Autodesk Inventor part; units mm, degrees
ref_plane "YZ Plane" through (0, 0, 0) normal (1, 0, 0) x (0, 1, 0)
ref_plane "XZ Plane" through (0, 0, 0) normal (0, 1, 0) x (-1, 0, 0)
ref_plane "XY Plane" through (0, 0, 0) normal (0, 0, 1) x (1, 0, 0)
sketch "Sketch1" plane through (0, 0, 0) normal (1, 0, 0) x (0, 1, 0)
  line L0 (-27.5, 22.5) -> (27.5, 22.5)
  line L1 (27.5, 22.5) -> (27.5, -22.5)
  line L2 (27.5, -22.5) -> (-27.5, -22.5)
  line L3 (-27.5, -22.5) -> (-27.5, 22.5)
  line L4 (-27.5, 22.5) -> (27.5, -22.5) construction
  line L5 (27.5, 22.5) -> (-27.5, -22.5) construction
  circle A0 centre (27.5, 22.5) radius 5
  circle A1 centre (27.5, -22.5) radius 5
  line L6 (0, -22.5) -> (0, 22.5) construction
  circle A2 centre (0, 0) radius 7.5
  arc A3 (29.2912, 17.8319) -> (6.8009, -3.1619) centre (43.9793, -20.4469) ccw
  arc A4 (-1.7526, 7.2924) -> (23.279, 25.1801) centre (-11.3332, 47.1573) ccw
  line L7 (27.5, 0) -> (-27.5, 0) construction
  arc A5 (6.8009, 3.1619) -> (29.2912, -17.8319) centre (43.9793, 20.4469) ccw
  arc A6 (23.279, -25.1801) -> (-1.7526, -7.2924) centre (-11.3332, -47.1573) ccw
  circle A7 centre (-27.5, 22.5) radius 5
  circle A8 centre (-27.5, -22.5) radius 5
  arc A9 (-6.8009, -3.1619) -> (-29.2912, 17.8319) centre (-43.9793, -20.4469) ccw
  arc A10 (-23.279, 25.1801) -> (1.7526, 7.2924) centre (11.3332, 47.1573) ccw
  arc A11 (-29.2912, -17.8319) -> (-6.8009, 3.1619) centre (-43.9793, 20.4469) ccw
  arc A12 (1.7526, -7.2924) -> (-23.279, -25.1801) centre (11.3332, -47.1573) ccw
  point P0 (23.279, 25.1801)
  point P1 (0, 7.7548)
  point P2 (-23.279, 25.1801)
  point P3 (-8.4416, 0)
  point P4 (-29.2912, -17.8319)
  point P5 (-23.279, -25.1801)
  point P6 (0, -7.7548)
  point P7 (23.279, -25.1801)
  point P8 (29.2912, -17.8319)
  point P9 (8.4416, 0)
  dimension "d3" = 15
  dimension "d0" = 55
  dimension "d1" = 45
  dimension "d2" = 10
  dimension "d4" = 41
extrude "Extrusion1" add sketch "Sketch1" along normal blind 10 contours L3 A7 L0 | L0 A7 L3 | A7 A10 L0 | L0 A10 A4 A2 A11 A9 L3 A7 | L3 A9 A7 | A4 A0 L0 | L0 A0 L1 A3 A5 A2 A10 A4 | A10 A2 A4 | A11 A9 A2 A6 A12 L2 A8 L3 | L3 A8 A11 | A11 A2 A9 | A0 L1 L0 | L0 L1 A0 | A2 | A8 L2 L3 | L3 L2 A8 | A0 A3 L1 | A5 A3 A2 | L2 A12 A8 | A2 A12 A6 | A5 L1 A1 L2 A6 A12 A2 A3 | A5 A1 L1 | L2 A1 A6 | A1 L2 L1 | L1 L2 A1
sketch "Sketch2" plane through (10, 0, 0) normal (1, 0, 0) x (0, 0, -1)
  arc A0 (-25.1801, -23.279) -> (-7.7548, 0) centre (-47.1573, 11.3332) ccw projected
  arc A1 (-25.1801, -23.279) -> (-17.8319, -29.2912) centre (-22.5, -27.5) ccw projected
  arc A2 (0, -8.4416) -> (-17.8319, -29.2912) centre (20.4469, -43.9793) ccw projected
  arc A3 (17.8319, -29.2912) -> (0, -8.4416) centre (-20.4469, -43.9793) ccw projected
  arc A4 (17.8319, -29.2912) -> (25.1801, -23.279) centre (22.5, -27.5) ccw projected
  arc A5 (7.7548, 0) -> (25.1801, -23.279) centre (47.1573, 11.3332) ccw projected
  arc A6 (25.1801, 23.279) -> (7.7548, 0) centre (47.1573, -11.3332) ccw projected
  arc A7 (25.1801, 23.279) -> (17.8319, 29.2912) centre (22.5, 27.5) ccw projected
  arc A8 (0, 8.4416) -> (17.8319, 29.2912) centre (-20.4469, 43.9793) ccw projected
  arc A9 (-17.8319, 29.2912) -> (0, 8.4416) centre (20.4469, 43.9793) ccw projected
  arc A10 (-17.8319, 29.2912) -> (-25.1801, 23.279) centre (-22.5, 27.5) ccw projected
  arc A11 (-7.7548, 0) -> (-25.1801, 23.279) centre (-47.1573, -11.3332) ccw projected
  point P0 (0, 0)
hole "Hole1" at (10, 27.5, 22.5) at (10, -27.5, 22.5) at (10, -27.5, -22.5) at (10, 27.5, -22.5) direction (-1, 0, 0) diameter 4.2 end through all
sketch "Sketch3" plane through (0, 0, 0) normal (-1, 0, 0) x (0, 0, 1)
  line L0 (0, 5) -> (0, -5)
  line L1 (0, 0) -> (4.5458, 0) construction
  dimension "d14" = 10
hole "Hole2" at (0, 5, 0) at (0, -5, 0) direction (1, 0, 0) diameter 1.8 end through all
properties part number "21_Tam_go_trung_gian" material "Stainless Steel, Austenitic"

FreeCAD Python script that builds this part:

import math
import FreeCAD as App
import Part
import Sketcher
Q = App.Units.Quantity

doc = App.newDocument("Part")
params = doc.addObject("Spreadsheet::Sheet", "Params")
for row, (alias, value) in enumerate([
    ("sketch1_radius", "5 mm"),
    ("sketch1_radius2", "41 mm"),
    ("pad1_length", "10 mm"),
    ("sketch2_diameter", "4.2 mm"),
    ("hole_diameter", "4.2 mm"),
    ("sketch3_diameter", "1.8 mm"),
    ("hole2_diameter", "1.8 mm"),
], start=1):
    params.set(f"A{row}", alias)
    params.set(f"B{row}", "=" + value)
    params.setAlias(f"B{row}", alias)

body = doc.addObject("PartDesign::Body", "Body")

# Sketch on YZ plane
sketch1 = body.newObject("Sketcher::SketchObject", "Sketch")
sketch1.AttachmentSupport = (doc.getObject("YZ_Plane"), [""])
sketch1.MapMode = "FlatFace"
sketch1.addGeometry(Part.ArcOfCircle(Part.Circle(App.Vector(-27.5, 22.5, 0), App.Vector(0, 0, 1), 5), math.radians(32.413274), math.radians(249.007657)), False)
sketch1.addGeometry(Part.ArcOfCircle(Part.Circle(App.Vector(-43.9793, -20.4469, 0), App.Vector(0, 0, 1), 41.000057), math.radians(29.914292), math.radians(69.007508)), False)
sketch1.addGeometry(Part.ArcOfCircle(Part.Circle(App.Vector(-43.9793, 20.4469, 0), App.Vector(0, 0, 1), 41.000083), math.radians(-69.007508), math.radians(-29.914317)), False)
sketch1.addGeometry(Part.ArcOfCircle(Part.Circle(App.Vector(-27.5, -22.5, 0), App.Vector(0, 0, 1), 5), math.radians(110.992343), math.radians(327.586726)), False)
sketch1.addGeometry(Part.ArcOfCircle(Part.Circle(App.Vector(11.3332, -47.1573, 0), App.Vector(0, 0, 1), 40.999977), math.radians(106.046611), math.radians(147.586278)), False)
sketch1.addGeometry(Part.ArcOfCircle(Part.Circle(App.Vector(-11.3332, -47.1573, 0), App.Vector(0, 0, 1), 41.000021), math.radians(32.413722), math.radians(73.953344)), False)
sketch1.addGeometry(Part.ArcOfCircle(Part.Circle(App.Vector(27.5, -22.5, 0), App.Vector(0, 0, 1), 5), math.radians(-147.586726), math.radians(69.007657)), False)
sketch1.addGeometry(Part.ArcOfCircle(Part.Circle(App.Vector(43.9793, 20.4469, 0), App.Vector(0, 0, 1), 41.000057), math.radians(-150.085708), math.radians(-110.992492)), False)
sketch1.addGeometry(Part.ArcOfCircle(Part.Circle(App.Vector(43.9793, -20.4469, 0), App.Vector(0, 0, 1), 41.000083), math.radians(110.992492), math.radians(150.085683)), False)
sketch1.addGeometry(Part.ArcOfCircle(Part.Circle(App.Vector(27.5, 22.5, 0), App.Vector(0, 0, 1), 5), math.radians(-69.007657), math.radians(147.586726)), False)
sketch1.addGeometry(Part.ArcOfCircle(Part.Circle(App.Vector(-11.3332, 47.1573, 0), App.Vector(0, 0, 1), 40.999977), math.radians(-73.953389), math.radians(-32.413722)), False)
sketch1.addGeometry(Part.ArcOfCircle(Part.Circle(App.Vector(11.3332, 47.1573, 0), App.Vector(0, 0, 1), 41.000021), math.radians(-147.586278), math.radians(-106.046656)), False)
sketch1.addConstraint(Sketcher.Constraint("Tangent", 0, 2, 1, 2))
sketch1.addConstraint(Sketcher.Constraint("Coincident", 1, 1, 2, 2))
sketch1.addConstraint(Sketcher.Constraint("Tangent", 2, 1, 3, 1))
sketch1.addConstraint(Sketcher.Constraint("Tangent", 3, 2, 4, 2))
sketch1.addConstraint(Sketcher.Constraint("Coincident", 4, 1, 5, 2))
sketch1.addConstraint(Sketcher.Constraint("Tangent", 5, 1, 6, 1))
sketch1.addConstraint(Sketcher.Constraint("Tangent", 6, 2, 7, 2))
sketch1.addConstraint(Sketcher.Constraint("Coincident", 7, 1, 8, 2))
sketch1.addConstraint(Sketcher.Constraint("Tangent", 8, 1, 9, 1))
sketch1.addConstraint(Sketcher.Constraint("Tangent", 9, 2, 10, 2))
sketch1.addConstraint(Sketcher.Constraint("Coincident", 10, 1, 11, 2))
sketch1.addConstraint(Sketcher.Constraint("Tangent", 11, 1, 0, 1))
sketch1.addConstraint(Sketcher.Constraint("Equal", 1, 2))
sketch1.addConstraint(Sketcher.Constraint("Equal", 0, 3))
sketch1.addConstraint(Sketcher.Constraint("Equal", 2, 4))
sketch1.addConstraint(Sketcher.Constraint("Equal", 4, 5))
sketch1.addConstraint(Sketcher.Constraint("Equal", 3, 6))
sketch1.addConstraint(Sketcher.Constraint("Equal", 5, 7))
sketch1.addConstraint(Sketcher.Constraint("Equal", 7, 8))
sketch1.addConstraint(Sketcher.Constraint("Equal", 6, 9))
sketch1.addConstraint(Sketcher.Constraint("Equal", 8, 10))
sketch1.addConstraint(Sketcher.Constraint("Equal", 10, 11))
sketch1.addConstraint(Sketcher.Constraint("Symmetric", 0, 3, 6, 3, -1, 1))
sketch1.addConstraint(Sketcher.Constraint("Symmetric", 2, 3, 8, 3, -1, 1))
sketch1.addConstraint(Sketcher.Constraint("Symmetric", 4, 3, 10, 3, -1, 1))
sketch1.addConstraint(Sketcher.Constraint("Symmetric", 4, 3, 5, 3, -2))
sketch1.addConstraint(Sketcher.Constraint("Symmetric", 2, 3, 7, 3, -2))
sketch1.addConstraint(Sketcher.Constraint("PointOnObject", 1, 1, -1))
sketch1.addConstraint(Sketcher.Constraint("PointOnObject", 10, 1, -2))
sketch1.addConstraint(Sketcher.Constraint("Radius", 0, Q("5 mm")))
sketch1.addConstraint(Sketcher.Constraint("Radius", 1, Q("41 mm")))
sketch1.addConstraint(Sketcher.Constraint("DistanceY", 3, 3, 0, 3, Q("45 mm")))
sketch1.addConstraint(Sketcher.Constraint("DistanceX", 3, 3, 6, 3, Q("55 mm")))
sketch1.addConstraint(Sketcher.Constraint("DistanceY", 3, 2, -1, 1, Q("25.18 mm")))
sketch1.addConstraint(Sketcher.Constraint("DistanceY", 1, 3, -1, 1, Q("20.447 mm")))
sketch1.setExpression("Constraints[29]", "Params.sketch1_radius")
sketch1.setExpression("Constraints[30]", "Params.sketch1_radius2")
pad1 = body.newObject("PartDesign::Pad", "Pad")
pad1.Profile = sketch1
pad1.setExpression("Length", "Params.pad1_length")

# Sketch on YZ plane
sketch2 = body.newObject("Sketcher::SketchObject", "Sketch001")
sketch2.AttachmentSupport = (doc.getObject("YZ_Plane"), [""])
sketch2.MapMode = "FlatFace"
sketch2.AttachmentOffset = App.Placement(App.Vector(0, 0, 10), App.Rotation())
sketch2.addGeometry(Part.Circle(App.Vector(27.5, 22.5, 0), App.Vector(0, 0, 1), 2.1), False)
sketch2.addGeometry(Part.Circle(App.Vector(-27.5, 22.5, 0), App.Vector(0, 0, 1), 2.1), False)
sketch2.addGeometry(Part.Circle(App.Vector(-27.5, -22.5, 0), App.Vector(0, 0, 1), 2.1), False)
sketch2.addGeometry(Part.Circle(App.Vector(27.5, -22.5, 0), App.Vector(0, 0, 1), 2.1), False)
sketch2.addConstraint(Sketcher.Constraint("Equal", 0, 1))
sketch2.addConstraint(Sketcher.Constraint("Equal", 1, 2))
sketch2.addConstraint(Sketcher.Constraint("Equal", 2, 3))
sketch2.addConstraint(Sketcher.Constraint("Symmetric", 0, 3, 2, 3, -1, 1))
sketch2.addConstraint(Sketcher.Constraint("Symmetric", 1, 3, 3, 3, -1, 1))
sketch2.addConstraint(Sketcher.Constraint("Symmetric", 0, 3, 1, 3, -2))
sketch2.addConstraint(Sketcher.Constraint("Diameter", 0, Q("4.2 mm")))
sketch2.addConstraint(Sketcher.Constraint("DistanceX", 1, 3, 0, 3, Q("55 mm")))
sketch2.addConstraint(Sketcher.Constraint("DistanceY", 2, 3, 1, 3, Q("45 mm")))
sketch2.setExpression("Constraints[6]", "Params.sketch2_diameter")
doc.recompute()
hole = body.newObject("PartDesign::Hole", "Hole")
hole.Profile = sketch2
hole.ThreadType = "None"
hole.setExpression("Diameter", "Params.hole_diameter")
hole.DepthType = "ThroughAll"

# Sketch on YZ plane
sketch3 = body.newObject("Sketcher::SketchObject", "Sketch002")
sketch3.AttachmentSupport = (doc.getObject("YZ_Plane"), [""])
sketch3.MapMode = "FlatFace"
sketch3.addGeometry(Part.Circle(App.Vector(5, 0, 0), App.Vector(0, 0, 1), 0.9), False)
sketch3.addGeometry(Part.Circle(App.Vector(-5, 0, 0), App.Vector(0, 0, 1), 0.9), False)
sketch3.addConstraint(Sketcher.Constraint("Equal", 0, 1))
sketch3.addConstraint(Sketcher.Constraint("Symmetric", 0, 3, 1, 3, -1, 1))
sketch3.addConstraint(Sketcher.Constraint("PointOnObject", 0, 3, -1))
sketch3.addConstraint(Sketcher.Constraint("Diameter", 0, Q("1.8 mm")))
sketch3.addConstraint(Sketcher.Constraint("DistanceX", -1, 1, 0, 3, Q("5 mm")))
sketch3.setExpression("Constraints[3]", "Params.sketch3_diameter")
doc.recompute()
hole2 = body.newObject("PartDesign::Hole", "Hole001")
hole2.Profile = sketch3
hole2.ThreadType = "None"
hole2.setExpression("Diameter", "Params.hole2_diameter")
hole2.DepthType = "ThroughAll"
hole2.Reversed = True

doc.recompute()
